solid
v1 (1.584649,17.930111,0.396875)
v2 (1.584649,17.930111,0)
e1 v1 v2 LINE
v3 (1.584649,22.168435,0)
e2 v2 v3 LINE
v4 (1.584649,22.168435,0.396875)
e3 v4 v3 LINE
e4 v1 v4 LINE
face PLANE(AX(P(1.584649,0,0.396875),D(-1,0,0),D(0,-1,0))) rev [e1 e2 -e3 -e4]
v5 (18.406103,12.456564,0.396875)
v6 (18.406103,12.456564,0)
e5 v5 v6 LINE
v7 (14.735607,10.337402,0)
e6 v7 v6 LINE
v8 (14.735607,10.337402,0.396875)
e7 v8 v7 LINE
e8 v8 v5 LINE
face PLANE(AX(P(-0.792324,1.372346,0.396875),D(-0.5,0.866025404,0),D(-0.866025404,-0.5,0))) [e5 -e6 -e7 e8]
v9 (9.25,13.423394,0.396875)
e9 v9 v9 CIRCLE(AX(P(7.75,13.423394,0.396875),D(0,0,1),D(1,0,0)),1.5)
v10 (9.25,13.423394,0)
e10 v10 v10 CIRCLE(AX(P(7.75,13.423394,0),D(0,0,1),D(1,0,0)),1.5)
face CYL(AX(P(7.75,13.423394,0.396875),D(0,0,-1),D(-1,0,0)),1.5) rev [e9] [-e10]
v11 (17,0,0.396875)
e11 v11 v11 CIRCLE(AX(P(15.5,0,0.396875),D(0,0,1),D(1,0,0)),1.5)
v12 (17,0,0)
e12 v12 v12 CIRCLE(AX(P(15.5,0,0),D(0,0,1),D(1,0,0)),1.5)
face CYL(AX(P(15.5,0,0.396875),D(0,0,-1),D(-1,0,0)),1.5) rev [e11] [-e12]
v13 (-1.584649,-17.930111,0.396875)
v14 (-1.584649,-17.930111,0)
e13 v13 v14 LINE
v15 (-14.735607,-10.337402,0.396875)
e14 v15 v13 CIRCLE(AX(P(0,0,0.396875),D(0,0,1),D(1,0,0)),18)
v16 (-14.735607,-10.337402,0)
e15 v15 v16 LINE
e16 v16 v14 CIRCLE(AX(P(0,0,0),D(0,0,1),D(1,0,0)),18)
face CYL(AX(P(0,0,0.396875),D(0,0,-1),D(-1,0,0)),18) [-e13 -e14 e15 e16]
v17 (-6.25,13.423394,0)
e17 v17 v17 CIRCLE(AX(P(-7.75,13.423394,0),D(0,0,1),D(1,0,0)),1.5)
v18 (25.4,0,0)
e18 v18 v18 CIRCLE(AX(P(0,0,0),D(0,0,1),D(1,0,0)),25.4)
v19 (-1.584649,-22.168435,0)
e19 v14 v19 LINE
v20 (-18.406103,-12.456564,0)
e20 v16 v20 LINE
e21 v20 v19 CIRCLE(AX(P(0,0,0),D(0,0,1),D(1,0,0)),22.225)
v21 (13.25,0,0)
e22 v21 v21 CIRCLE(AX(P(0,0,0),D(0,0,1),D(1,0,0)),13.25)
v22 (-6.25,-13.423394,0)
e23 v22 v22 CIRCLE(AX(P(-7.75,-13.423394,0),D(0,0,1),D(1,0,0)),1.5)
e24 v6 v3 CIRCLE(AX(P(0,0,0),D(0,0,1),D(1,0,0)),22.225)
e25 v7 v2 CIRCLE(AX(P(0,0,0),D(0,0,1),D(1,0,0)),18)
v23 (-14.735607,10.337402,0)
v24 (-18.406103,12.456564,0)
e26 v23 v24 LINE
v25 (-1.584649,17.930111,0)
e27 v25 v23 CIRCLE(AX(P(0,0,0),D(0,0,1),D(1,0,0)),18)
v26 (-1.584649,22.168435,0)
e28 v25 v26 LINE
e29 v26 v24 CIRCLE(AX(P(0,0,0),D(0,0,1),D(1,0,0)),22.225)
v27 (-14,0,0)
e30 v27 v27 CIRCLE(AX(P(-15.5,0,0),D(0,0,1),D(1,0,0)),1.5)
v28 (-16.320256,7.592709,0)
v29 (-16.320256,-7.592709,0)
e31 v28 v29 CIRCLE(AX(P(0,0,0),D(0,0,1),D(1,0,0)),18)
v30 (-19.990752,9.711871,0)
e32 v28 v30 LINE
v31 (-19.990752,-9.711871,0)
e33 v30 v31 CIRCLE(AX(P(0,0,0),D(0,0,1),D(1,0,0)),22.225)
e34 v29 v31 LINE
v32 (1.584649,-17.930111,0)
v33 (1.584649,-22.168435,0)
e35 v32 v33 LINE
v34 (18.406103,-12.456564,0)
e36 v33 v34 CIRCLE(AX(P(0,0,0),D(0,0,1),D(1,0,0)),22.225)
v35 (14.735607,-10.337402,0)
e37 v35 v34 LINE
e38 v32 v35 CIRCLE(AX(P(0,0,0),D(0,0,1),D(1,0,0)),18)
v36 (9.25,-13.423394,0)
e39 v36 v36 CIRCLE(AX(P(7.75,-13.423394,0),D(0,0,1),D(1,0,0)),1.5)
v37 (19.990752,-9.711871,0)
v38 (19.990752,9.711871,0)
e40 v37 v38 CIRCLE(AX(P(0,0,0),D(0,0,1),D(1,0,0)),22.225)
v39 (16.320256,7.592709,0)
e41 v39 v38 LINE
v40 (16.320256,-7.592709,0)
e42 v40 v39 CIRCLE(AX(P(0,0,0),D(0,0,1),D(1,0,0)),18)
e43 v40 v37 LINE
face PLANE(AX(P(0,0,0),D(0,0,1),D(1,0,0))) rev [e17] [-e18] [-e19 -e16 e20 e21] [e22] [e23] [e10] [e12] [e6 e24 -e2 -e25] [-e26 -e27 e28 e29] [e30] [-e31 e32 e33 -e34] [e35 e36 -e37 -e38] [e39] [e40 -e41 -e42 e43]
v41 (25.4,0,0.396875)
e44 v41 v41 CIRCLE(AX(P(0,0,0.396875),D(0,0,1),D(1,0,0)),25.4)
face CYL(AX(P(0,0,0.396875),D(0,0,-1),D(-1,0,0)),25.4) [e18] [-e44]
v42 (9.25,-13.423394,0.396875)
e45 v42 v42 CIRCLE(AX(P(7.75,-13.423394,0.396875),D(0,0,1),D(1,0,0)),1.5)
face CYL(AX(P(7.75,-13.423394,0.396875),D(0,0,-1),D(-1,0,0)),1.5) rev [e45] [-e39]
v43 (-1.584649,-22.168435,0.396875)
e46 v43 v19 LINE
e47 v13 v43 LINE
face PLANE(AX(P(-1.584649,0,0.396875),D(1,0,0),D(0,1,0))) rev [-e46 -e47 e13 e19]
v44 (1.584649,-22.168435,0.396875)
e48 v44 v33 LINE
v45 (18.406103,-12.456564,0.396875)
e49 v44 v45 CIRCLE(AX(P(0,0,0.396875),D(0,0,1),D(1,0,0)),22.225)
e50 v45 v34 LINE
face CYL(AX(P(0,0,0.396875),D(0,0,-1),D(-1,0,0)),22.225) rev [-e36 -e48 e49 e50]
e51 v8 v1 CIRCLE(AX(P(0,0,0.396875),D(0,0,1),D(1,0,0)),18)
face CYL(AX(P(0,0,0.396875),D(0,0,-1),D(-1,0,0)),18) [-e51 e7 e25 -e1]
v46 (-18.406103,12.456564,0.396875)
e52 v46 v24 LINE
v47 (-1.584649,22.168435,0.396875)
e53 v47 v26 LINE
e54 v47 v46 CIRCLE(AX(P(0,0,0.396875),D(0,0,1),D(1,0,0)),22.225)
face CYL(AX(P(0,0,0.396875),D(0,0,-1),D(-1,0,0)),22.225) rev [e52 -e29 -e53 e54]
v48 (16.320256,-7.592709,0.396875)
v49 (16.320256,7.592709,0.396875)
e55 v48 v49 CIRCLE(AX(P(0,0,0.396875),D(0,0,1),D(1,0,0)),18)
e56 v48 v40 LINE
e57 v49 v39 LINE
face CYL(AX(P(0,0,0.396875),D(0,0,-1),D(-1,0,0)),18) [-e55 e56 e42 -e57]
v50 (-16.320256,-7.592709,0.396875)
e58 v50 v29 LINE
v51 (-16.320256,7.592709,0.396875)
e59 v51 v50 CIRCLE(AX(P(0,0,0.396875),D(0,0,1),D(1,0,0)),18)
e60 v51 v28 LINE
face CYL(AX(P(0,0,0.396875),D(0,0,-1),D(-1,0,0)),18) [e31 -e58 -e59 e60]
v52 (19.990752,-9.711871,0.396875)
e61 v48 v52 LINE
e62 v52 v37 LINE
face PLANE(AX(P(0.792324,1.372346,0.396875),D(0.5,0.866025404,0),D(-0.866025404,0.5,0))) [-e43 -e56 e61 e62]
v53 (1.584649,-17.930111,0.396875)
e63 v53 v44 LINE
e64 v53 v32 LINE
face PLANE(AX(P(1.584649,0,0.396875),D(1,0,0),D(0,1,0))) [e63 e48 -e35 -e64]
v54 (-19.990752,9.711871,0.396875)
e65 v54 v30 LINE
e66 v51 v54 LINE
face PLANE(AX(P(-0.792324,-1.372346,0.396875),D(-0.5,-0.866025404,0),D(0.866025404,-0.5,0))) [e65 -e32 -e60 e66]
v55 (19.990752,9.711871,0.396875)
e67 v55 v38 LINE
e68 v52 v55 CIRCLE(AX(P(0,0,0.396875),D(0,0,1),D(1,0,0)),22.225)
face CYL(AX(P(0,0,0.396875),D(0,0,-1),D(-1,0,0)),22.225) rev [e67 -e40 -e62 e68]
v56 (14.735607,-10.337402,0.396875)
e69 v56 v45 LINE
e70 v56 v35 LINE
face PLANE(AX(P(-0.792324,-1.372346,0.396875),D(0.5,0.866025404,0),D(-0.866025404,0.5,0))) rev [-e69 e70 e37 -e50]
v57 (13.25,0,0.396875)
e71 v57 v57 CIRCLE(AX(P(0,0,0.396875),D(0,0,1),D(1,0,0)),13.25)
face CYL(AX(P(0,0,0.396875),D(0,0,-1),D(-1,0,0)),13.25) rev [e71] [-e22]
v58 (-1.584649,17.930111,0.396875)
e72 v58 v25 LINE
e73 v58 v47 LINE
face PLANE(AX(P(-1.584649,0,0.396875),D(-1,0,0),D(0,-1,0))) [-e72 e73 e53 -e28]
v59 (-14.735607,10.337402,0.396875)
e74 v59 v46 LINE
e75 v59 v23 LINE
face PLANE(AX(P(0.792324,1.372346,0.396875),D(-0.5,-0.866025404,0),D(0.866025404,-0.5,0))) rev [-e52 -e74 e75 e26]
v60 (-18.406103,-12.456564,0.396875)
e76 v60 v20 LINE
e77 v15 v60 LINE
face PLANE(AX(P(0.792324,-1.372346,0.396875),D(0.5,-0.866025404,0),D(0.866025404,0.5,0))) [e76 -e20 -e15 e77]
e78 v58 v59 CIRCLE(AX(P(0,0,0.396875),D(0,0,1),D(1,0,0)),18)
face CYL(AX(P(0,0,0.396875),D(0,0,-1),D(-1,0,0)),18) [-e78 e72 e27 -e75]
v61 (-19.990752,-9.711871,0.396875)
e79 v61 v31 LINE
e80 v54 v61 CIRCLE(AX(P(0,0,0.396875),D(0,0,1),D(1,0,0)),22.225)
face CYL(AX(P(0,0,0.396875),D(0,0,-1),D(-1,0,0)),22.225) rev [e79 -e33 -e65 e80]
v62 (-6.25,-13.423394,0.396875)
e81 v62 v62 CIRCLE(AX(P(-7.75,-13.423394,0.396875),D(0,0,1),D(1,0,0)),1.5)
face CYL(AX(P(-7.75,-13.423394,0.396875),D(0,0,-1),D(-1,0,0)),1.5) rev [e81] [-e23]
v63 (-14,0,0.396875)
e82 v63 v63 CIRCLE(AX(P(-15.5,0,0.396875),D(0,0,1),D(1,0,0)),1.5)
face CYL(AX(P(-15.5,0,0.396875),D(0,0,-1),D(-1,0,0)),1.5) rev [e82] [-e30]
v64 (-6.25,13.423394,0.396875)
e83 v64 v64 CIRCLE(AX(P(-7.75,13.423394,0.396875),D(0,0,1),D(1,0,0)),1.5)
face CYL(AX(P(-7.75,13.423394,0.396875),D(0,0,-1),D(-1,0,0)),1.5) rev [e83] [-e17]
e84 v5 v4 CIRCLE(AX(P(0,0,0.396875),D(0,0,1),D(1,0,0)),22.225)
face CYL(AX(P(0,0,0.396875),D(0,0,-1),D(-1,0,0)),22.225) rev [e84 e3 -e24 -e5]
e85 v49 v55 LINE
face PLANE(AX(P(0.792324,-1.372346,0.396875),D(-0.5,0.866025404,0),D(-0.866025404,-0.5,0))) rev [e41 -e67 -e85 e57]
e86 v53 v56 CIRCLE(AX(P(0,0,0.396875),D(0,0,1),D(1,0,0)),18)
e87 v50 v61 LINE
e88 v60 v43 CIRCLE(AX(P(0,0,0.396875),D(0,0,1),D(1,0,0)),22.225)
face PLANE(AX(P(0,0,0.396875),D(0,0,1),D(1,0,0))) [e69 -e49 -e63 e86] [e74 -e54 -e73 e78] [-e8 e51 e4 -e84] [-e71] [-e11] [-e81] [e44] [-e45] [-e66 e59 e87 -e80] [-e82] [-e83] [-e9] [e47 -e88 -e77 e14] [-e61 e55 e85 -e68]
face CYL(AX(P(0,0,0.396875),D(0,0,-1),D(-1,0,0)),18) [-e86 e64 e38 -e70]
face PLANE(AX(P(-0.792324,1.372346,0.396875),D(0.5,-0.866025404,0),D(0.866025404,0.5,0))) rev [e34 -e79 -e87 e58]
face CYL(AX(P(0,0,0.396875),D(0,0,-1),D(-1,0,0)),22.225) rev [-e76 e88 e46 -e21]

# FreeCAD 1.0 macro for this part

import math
import FreeCAD as App
import Part
import Sketcher

V = App.Vector
Q = App.Units.Quantity

doc = App.newDocument("Part")
body = doc.addObject("PartDesign::Body", "Body")

# Sketch on XY plane
sketch1 = doc.addObject("Sketcher::SketchObject", "Sketch")
body.addObject(sketch1)
sketch1.AttachmentSupport = (doc.XY_Plane, [""])
sketch1.MapMode = "FlatFace"
sketch1.addGeometry([
    Part.Circle(V(0, 0, 0), V(0, 0, 1), 25.4),  # 0
    Part.LineSegment(V(-18.406103, -12.456564, 0), V(-14.735607, -10.337402, 0)),  # 1
    Part.ArcOfCircle(Part.Circle(V(0, 0, 0), V(0, 0, 1), 18), math.radians(-144.949367), math.radians(-95.050633)),  # 2
    Part.LineSegment(V(-1.584649, -17.930111, 0), V(-1.584649, -22.168435, 0)),  # 3
    Part.ArcOfCircle(Part.Circle(V(0, 0, 0), V(0, 0, 1), 22.225), math.radians(-145.911325), math.radians(-94.088675)),  # 4
    Part.Circle(V(-7.75, -13.423394, 0), V(0, 0, 1), 1.5),  # 5
    Part.Circle(V(-15.5, 0, 0), V(0, 0, 1), 1.5),  # 6
    Part.LineSegment(V(1.584649, -22.168435, 0), V(1.584649, -17.930111, 0)),  # 7
    Part.ArcOfCircle(Part.Circle(V(0, 0, 0), V(0, 0, 1), 18), math.radians(-84.949367), math.radians(-35.050633)),  # 8
    Part.LineSegment(V(14.735607, -10.337402, 0), V(18.406103, -12.456564, 0)),  # 9
    Part.ArcOfCircle(Part.Circle(V(0, 0, 0), V(0, 0, 1), 22.225), math.radians(-85.911325), math.radians(-34.088675)),  # 10
    Part.Circle(V(7.75, -13.423394, 0), V(0, 0, 1), 1.5),  # 11
    Part.Circle(V(15.5, 0, 0), V(0, 0, 1), 1.5),  # 12
    Part.LineSegment(V(-19.990752, 9.711871, 0), V(-16.320256, 7.592709, 0)),  # 13
    Part.ArcOfCircle(Part.Circle(V(0, 0, 0), V(0, 0, 1), 18), math.radians(155.050633), math.radians(204.949367)),  # 14
    Part.LineSegment(V(-16.320256, -7.592709, 0), V(-19.990752, -9.711871, 0)),  # 15
    Part.ArcOfCircle(Part.Circle(V(0, 0, 0), V(0, 0, 1), 22.225), math.radians(154.088675), math.radians(205.911325)),  # 16
    Part.Circle(V(-7.75, 13.423394, 0), V(0, 0, 1), 1.5),  # 17
    Part.LineSegment(V(-1.584649, 22.168435, 0), V(-1.584649, 17.930111, 0)),  # 18
    Part.ArcOfCircle(Part.Circle(V(0, 0, 0), V(0, 0, 1), 18), math.radians(95.050633), math.radians(144.949367)),  # 19
    Part.LineSegment(V(-14.735607, 10.337402, 0), V(-18.406103, 12.456564, 0)),  # 20
    Part.ArcOfCircle(Part.Circle(V(0, 0, 0), V(0, 0, 1), 22.225), math.radians(94.088675), math.radians(145.911325)),  # 21
    Part.Circle(V(0, 0, 0), V(0, 0, 1), 13.25),  # 22
    Part.ArcOfCircle(Part.Circle(V(0, 0, 0), V(0, 0, 1), 18), math.radians(-24.949367), math.radians(24.949367)),  # 23
    Part.LineSegment(V(16.320256, 7.592709, 0), V(19.990752, 9.711871, 0)),  # 24
    Part.ArcOfCircle(Part.Circle(V(0, 0, 0), V(0, 0, 1), 22.225), math.radians(-25.911325), math.radians(25.911325)),  # 25
    Part.LineSegment(V(19.990752, -9.711871, 0), V(16.320256, -7.592709, 0)),  # 26
    Part.Circle(V(7.75, 13.423394, 0), V(0, 0, 1), 1.5),  # 27
    Part.ArcOfCircle(Part.Circle(V(0, 0, 0), V(0, 0, 1), 18), math.radians(35.050633), math.radians(84.949367)),  # 28
    Part.LineSegment(V(1.584649, 17.930111, 0), V(1.584649, 22.168435, 0)),  # 29
    Part.ArcOfCircle(Part.Circle(V(0, 0, 0), V(0, 0, 1), 22.225), math.radians(34.088675), math.radians(85.911325)),  # 30
    Part.LineSegment(V(18.406103, 12.456564, 0), V(14.735607, 10.337402, 0)),  # 31
], False)
sketch1.addConstraint([
    Sketcher.Constraint("Coincident", 1, 2, 2, 1),
    Sketcher.Constraint("Coincident", 2, 2, 3, 1),
    Sketcher.Constraint("Coincident", 3, 2, 4, 2),
    Sketcher.Constraint("Coincident", 4, 1, 1, 1),
    Sketcher.Constraint("Coincident", 7, 2, 8, 1),
    Sketcher.Constraint("Coincident", 8, 2, 9, 1),
    Sketcher.Constraint("Coincident", 9, 2, 10, 2),
    Sketcher.Constraint("Coincident", 10, 1, 7, 1),
    Sketcher.Constraint("Coincident", 13, 2, 14, 1),
    Sketcher.Constraint("Coincident", 14, 2, 15, 1),
    Sketcher.Constraint("Coincident", 15, 2, 16, 2),
    Sketcher.Constraint("Coincident", 16, 1, 13, 1),
    Sketcher.Constraint("Coincident", 18, 2, 19, 1),
    Sketcher.Constraint("Coincident", 19, 2, 20, 1),
    Sketcher.Constraint("Coincident", 20, 2, 21, 2),
    Sketcher.Constraint("Coincident", 21, 1, 18, 1),
    Sketcher.Constraint("Coincident", 23, 2, 24, 1),
    Sketcher.Constraint("Coincident", 24, 2, 25, 2),
    Sketcher.Constraint("Coincident", 25, 1, 26, 1),
    Sketcher.Constraint("Coincident", 26, 2, 23, 1),
    Sketcher.Constraint("Coincident", 28, 2, 29, 1),
    Sketcher.Constraint("Coincident", 29, 2, 30, 2),
    Sketcher.Constraint("Coincident", 30, 1, 31, 1),
    Sketcher.Constraint("Coincident", 31, 2, 28, 1),
    Sketcher.Constraint("Vertical", 3),
    Sketcher.Constraint("Vertical", 7),
    Sketcher.Constraint("Vertical", 18),
    Sketcher.Constraint("Vertical", 29),
    Sketcher.Constraint("Coincident", 0, 3, -1, 1),
    Sketcher.Constraint("Coincident", 2, 3, -1, 1),
    Sketcher.Constraint("Coincident", 4, 3, -1, 1),
    Sketcher.Constraint("Coincident", 8, 3, -1, 1),
    Sketcher.Constraint("Coincident", 10, 3, -1, 1),
    Sketcher.Constraint("Coincident", 14, 3, -1, 1),
    Sketcher.Constraint("Coincident", 16, 3, -1, 1),
    Sketcher.Constraint("Coincident", 19, 3, -1, 1),
    Sketcher.Constraint("Coincident", 21, 3, -1, 1),
    Sketcher.Constraint("Coincident", 22, 3, -1, 1),
    Sketcher.Constraint("Coincident", 23, 3, -1, 1),
    Sketcher.Constraint("Coincident", 25, 3, -1, 1),
    Sketcher.Constraint("Coincident", 28, 3, -1, 1),
    Sketcher.Constraint("Coincident", 30, 3, -1, 1),
    Sketcher.Constraint("Equal", 5, 6),
    Sketcher.Constraint("Equal", 2, 8),
    Sketcher.Constraint("Equal", 4, 10),
    Sketcher.Constraint("Equal", 6, 11),
    Sketcher.Constraint("Equal", 11, 12),
    Sketcher.Constraint("Equal", 8, 14),
    Sketcher.Constraint("Equal", 10, 16),
    Sketcher.Constraint("Equal", 12, 17),
    Sketcher.Constraint("Equal", 14, 19),
    Sketcher.Constraint("Equal", 16, 21),
    Sketcher.Constraint("Equal", 19, 23),
    Sketcher.Constraint("Equal", 21, 25),
    Sketcher.Constraint("Equal", 17, 27),
    Sketcher.Constraint("Equal", 23, 28),
    Sketcher.Constraint("Equal", 25, 30),
    Sketcher.Constraint("Symmetric", 6, 3, 12, 3, -1, 1),
    Sketcher.Constraint("Symmetric", 11, 3, 17, 3, -1, 1),
    Sketcher.Constraint("Symmetric", 5, 3, 27, 3, -1, 1),
    Sketcher.Constraint("Symmetric", 5, 3, 11, 3, -2),
    Sketcher.Constraint("PointOnObject", 6, 3, -1),
    Sketcher.Constraint("Parallel", 9, 13),
    Sketcher.Constraint("Parallel", 1, 15),
    Sketcher.Constraint("Parallel", 13, 20),
    Sketcher.Constraint("Parallel", 15, 24),
    Sketcher.Constraint("Parallel", 20, 26),
    Sketcher.Constraint("Parallel", 24, 31),
    Sketcher.Constraint("Horizontal", 2, 2, 7, 2),
    Sketcher.Constraint("Horizontal", 1, 2, 8, 2),
    Sketcher.Constraint("Horizontal", 4, 1, 9, 2),
    Sketcher.Constraint("Horizontal", 13, 2, 23, 2),
    Sketcher.Constraint("Horizontal", 15, 2, 25, 1),
    Sketcher.Constraint("Horizontal", 18, 2, 28, 2),
    Sketcher.Constraint("Horizontal", 20, 2, 30, 1),
    Sketcher.Constraint("Vertical", 13, 2, 14, 2),
    Sketcher.Constraint("Vertical", 3, 2, 18, 2),
    Sketcher.Constraint("Vertical", 1, 2, 19, 2),
    Sketcher.Constraint("Equal", 9, 13),
    Sketcher.Constraint("Diameter", 5, 3.0),
    Sketcher.Constraint("Radius", 2, 18.0),
    Sketcher.Constraint("Diameter", 0, 50.8),
    Sketcher.Constraint("Diameter", 22, 26.5),
    Sketcher.Constraint("Angle", 1, Q("30 deg")),
    Sketcher.Constraint("Radius", 4, 22.225),
    Sketcher.Constraint("DistanceX", 6, 3, -1, 1, 15.5),
    Sketcher.Constraint("DistanceX", 5, 3, 11, 3, 15.5),
    Sketcher.Constraint("DistanceY", 1, 2, -1, 1, 10.337402),
    Sketcher.Constraint("DistanceY", 13, 2, 18, 2, 10.337402),
    Sketcher.Constraint("DistanceY", 5, 3, 1, 2, 3.085992),
])
pad1 = doc.addObject("PartDesign::Pad", "Pad")
body.addObject(pad1)
pad1.Profile = sketch1
pad1.Length = 0.396875

doc.recompute()
